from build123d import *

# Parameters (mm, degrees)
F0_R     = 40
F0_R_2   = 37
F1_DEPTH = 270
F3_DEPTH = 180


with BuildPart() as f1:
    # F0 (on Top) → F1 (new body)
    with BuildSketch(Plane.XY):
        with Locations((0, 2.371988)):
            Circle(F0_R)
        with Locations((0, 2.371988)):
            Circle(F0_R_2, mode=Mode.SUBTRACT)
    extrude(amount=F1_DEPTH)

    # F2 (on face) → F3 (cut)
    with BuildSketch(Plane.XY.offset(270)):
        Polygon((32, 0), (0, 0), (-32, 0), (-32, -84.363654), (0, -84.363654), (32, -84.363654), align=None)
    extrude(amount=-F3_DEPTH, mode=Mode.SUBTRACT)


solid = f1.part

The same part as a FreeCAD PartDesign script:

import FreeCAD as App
import Part
import Sketcher

V = App.Vector

doc = App.newDocument("Part")
body = doc.addObject("PartDesign::Body", "Body")

# Sketch on XY plane
sketch1 = doc.addObject("Sketcher::SketchObject", "Sketch")
body.addObject(sketch1)
sketch1.AttachmentSupport = (doc.XY_Plane, [""])
sketch1.MapMode = "FlatFace"
sketch1.addGeometry(Part.Circle(V(0, 2, 0), V(0, 0, 1), 40), False)
sketch1.addGeometry(Part.Circle(V(0, 2, 0), V(0, 0, 1), 37), False)
sketch1.addConstraint(Sketcher.Constraint("Coincident", 1, 3, 0, 3))
sketch1.addConstraint(Sketcher.Constraint("PointOnObject", 0, 3, -2))
sketch1.addConstraint(Sketcher.Constraint("Diameter", 0, 80.0))
sketch1.addConstraint(Sketcher.Constraint("Diameter", 1, 74.0))
sketch1.addConstraint(Sketcher.Constraint("DistanceY", -1, 1, 0, 3, 2.371988))
pad1 = doc.addObject("PartDesign::Pad", "Pad")
body.addObject(pad1)
pad1.Profile = sketch1
pad1.Length = 270

# Sketch on XY plane
sketch2 = doc.addObject("Sketcher::SketchObject", "Sketch001")
body.addObject(sketch2)
sketch2.AttachmentSupport = (doc.XY_Plane, [""])
sketch2.MapMode = "FlatFace"
sketch2.AttachmentOffset = App.Placement(V(0, 0, 270), App.Rotation())
sketch2.addGeometry(Part.LineSegment(V(32, 0, 0), V(-32, 0, 0)), False)
sketch2.addGeometry(Part.LineSegment(V(-32, 0, 0), V(-32, -84, 0)), False)
sketch2.addGeometry(Part.LineSegment(V(-32, -84, 0), V(32, -84, 0)), False)
sketch2.addGeometry(Part.LineSegment(V(32, -84, 0), V(32, 0, 0)), False)
sketch2.addConstraint(Sketcher.Constraint("Coincident", 0, 2, 1, 1))
sketch2.addConstraint(Sketcher.Constraint("Coincident", 1, 2, 2, 1))
sketch2.addConstraint(Sketcher.Constraint("Coincident", 2, 2, 3, 1))
sketch2.addConstraint(Sketcher.Constraint("Coincident", 3, 2, 0, 1))
sketch2.addConstraint(Sketcher.Constraint("Horizontal", 0))
sketch2.addConstraint(Sketcher.Constraint("Vertical", 1))
sketch2.addConstraint(Sketcher.Constraint("Horizontal", 2))
sketch2.addConstraint(Sketcher.Constraint("Vertical", 3))
sketch2.addConstraint(Sketcher.Constraint("Symmetric", 0, 2, 3, 2, -1, 1))
sketch2.addConstraint(Sketcher.Constraint("DistanceX", 0, 2, 0, 1, 64.0))
sketch2.addConstraint(Sketcher.Constraint("DistanceY", 1, 2, 1, 1, 84.363654))
pocket1 = doc.addObject("PartDesign::Pocket", "Pocket")
body.addObject(pocket1)
pocket1.Profile = sketch2
pocket1.Length = 180

doc.recompute()
